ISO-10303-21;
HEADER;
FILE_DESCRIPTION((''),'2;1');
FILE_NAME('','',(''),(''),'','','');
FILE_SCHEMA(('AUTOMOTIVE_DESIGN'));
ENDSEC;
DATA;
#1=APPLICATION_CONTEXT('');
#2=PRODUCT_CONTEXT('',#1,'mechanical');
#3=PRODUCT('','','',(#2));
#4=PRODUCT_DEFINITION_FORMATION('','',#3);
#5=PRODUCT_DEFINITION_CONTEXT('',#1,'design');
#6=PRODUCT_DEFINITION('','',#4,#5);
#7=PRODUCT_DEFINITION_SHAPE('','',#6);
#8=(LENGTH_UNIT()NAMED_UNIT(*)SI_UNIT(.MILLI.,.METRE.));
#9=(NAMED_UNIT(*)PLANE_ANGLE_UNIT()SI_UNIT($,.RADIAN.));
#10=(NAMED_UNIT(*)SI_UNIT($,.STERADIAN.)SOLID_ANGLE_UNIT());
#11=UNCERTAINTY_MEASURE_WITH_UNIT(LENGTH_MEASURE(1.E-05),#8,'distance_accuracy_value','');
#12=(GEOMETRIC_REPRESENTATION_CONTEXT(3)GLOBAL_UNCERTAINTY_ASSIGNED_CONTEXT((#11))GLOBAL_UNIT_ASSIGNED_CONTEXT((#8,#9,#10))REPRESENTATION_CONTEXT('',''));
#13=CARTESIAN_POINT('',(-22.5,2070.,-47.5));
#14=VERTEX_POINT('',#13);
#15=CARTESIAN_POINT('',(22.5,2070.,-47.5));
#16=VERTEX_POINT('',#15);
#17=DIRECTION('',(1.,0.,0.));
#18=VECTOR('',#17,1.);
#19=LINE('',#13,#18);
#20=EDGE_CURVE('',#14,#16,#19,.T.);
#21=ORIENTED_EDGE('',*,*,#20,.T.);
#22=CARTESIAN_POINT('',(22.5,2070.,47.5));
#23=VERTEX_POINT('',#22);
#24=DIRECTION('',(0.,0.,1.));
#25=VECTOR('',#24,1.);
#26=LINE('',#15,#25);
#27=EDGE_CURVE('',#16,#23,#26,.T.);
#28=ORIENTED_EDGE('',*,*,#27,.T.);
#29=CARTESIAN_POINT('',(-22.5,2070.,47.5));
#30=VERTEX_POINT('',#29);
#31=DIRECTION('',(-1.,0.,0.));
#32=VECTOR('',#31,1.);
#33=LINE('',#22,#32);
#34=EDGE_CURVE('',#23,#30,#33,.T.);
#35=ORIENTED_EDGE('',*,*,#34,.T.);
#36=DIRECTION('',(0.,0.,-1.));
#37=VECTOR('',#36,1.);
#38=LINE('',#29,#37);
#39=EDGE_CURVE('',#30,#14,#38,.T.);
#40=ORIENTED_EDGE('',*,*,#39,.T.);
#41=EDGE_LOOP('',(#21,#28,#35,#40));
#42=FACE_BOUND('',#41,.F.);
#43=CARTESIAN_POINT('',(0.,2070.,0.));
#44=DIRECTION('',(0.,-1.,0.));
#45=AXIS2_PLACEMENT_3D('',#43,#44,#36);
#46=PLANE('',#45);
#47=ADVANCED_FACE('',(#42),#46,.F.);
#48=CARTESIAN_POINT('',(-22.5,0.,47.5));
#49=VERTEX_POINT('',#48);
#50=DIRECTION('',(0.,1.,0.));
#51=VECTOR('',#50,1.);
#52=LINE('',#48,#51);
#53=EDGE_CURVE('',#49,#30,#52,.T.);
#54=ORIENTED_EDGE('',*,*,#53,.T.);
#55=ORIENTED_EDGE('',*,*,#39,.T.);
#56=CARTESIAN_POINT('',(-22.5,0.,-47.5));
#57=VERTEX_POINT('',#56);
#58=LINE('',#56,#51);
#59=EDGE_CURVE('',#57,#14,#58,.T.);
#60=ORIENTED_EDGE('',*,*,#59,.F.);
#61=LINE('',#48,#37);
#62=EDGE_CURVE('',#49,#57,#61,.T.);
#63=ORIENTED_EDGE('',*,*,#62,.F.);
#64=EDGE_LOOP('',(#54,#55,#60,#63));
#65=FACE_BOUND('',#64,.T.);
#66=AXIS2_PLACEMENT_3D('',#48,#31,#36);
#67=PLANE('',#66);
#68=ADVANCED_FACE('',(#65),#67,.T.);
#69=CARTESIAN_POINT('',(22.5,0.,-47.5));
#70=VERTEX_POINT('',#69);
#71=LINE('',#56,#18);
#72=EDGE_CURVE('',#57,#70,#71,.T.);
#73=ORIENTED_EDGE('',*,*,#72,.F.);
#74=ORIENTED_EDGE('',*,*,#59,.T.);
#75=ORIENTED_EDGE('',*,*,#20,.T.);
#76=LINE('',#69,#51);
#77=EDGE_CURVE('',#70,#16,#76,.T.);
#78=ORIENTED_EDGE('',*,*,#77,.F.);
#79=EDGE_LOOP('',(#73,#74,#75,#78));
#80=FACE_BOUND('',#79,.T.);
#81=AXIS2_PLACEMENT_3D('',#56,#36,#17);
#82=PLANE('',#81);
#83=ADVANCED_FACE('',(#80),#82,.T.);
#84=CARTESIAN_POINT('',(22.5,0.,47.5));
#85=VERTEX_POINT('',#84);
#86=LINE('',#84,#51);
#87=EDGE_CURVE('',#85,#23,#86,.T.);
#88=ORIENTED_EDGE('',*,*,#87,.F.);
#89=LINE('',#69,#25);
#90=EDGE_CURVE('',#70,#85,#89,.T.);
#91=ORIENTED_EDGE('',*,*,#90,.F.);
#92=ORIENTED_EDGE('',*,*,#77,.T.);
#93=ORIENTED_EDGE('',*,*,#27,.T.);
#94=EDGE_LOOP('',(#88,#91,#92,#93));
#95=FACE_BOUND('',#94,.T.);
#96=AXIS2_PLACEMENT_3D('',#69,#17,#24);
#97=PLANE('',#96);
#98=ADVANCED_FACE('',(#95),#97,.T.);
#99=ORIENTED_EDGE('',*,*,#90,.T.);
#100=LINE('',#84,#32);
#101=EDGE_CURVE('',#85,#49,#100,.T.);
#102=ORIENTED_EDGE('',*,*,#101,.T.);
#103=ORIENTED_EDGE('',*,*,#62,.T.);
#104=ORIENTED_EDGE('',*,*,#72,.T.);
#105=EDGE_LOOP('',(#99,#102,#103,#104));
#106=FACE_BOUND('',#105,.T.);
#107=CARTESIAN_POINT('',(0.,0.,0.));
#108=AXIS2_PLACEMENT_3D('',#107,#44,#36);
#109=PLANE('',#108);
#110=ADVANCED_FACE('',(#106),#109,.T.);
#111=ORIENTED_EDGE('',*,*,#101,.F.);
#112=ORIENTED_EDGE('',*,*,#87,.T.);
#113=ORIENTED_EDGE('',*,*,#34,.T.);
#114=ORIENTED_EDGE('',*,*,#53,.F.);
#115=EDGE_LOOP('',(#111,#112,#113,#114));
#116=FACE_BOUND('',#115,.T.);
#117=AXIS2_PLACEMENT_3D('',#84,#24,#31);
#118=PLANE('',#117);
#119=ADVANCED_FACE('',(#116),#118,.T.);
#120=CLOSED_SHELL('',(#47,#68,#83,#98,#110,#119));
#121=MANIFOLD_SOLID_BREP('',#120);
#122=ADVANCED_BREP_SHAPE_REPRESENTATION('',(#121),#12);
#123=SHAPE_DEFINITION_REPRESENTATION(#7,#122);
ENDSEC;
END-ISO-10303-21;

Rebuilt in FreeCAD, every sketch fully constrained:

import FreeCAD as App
import Part
import Sketcher

V = App.Vector
Q = App.Units.Quantity

doc = App.newDocument("Part")
params = doc.addObject("Spreadsheet::Sheet", "Params")
for row, (alias, value) in enumerate([
    ("sketch1_width", "45 mm"),
    ("sketch1_height", "95 mm"),
    ("pad1_length", "2070 mm"),
], start=1):
    params.set(f"A{row}", alias)
    params.set(f"B{row}", "=" + value)
    params.setAlias(f"B{row}", alias)

body = doc.addObject("PartDesign::Body", "Body")

# Sketch on XZ plane
sketch1 = body.newObject("Sketcher::SketchObject", "Sketch")
sketch1.AttachmentSupport = (doc.getObject("XZ_Plane"), [""])
sketch1.MapMode = "FlatFace"
sketch1.addGeometry([
    Part.LineSegment(V(-22, 48, 0), V(-22, -48, 0)),
    Part.LineSegment(V(-22, -48, 0), V(22, -48, 0)),
    Part.LineSegment(V(22, -48, 0), V(22, 48, 0)),
    Part.LineSegment(V(22, 48, 0), V(-22, 48, 0)),
], False)
sketch1.addConstraint([
    Sketcher.Constraint("Coincident", 0, 2, 1, 1),
    Sketcher.Constraint("Coincident", 1, 2, 2, 1),
    Sketcher.Constraint("Coincident", 2, 2, 3, 1),
    Sketcher.Constraint("Coincident", 3, 2, 0, 1),
    Sketcher.Constraint("Vertical", 0),
    Sketcher.Constraint("Horizontal", 1),
    Sketcher.Constraint("Vertical", 2),
    Sketcher.Constraint("Horizontal", 3),
    Sketcher.Constraint("Symmetric", 0, 2, 2, 2, -1, 1),
    Sketcher.Constraint("DistanceX", 1, 1, 1, 2, Q("45 mm")),
    Sketcher.Constraint("DistanceY", 0, 2, 0, 1, Q("95 mm")),
])
sketch1.setExpression("Constraints[9]", "Params.sketch1_width")
sketch1.setExpression("Constraints[10]", "Params.sketch1_height")
pad1 = body.newObject("PartDesign::Pad", "Pad")
pad1.Profile = sketch1
pad1.setExpression("Length", "Params.pad1_length")
pad1.Reversed = True

doc.recompute()
